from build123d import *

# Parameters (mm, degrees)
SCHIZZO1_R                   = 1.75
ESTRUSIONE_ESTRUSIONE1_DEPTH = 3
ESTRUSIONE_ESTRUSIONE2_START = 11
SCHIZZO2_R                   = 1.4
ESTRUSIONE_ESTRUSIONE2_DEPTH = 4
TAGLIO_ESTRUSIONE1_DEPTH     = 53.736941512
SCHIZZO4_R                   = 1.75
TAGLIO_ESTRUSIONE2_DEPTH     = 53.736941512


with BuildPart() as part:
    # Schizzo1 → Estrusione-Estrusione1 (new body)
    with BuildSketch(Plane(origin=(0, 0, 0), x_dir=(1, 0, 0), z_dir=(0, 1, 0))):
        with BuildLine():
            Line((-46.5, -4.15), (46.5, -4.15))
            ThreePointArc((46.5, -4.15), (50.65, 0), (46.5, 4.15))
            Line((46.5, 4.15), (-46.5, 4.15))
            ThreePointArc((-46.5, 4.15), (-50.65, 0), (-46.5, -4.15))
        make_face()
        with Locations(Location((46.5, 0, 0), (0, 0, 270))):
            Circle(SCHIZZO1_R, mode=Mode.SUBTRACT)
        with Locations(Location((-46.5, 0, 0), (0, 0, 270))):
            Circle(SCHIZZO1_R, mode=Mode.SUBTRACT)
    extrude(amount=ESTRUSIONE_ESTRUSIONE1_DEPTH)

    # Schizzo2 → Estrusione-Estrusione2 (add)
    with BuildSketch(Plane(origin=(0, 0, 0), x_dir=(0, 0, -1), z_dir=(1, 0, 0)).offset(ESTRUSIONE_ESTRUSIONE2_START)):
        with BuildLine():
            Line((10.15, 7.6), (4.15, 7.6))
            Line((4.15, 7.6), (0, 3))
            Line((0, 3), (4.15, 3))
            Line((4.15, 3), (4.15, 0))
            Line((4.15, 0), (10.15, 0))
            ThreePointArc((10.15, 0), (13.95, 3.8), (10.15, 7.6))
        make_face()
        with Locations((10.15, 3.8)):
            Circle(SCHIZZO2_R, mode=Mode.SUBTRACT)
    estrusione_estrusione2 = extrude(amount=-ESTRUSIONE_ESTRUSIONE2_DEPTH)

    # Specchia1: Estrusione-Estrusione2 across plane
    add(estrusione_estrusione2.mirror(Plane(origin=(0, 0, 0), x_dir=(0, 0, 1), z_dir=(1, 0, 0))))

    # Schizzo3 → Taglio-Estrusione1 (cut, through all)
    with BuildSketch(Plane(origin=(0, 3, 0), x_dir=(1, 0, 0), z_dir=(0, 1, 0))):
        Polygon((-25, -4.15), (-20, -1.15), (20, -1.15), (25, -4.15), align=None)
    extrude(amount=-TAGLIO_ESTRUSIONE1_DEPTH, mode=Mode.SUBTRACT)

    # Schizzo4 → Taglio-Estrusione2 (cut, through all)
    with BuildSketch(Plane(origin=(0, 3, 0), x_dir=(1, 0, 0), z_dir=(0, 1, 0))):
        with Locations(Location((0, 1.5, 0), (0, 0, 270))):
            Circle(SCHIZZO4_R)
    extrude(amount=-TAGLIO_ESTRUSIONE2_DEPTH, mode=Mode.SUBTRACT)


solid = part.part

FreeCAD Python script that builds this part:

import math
import FreeCAD as App
import Part
import Sketcher
from FreeCAD import Vector


def add_polygon(sketch, points):
    """Adds a closed chain of lines whose ends are joined by coincident constraints."""
    first, n = sketch.GeometryCount, len(points)
    for a, b in zip(points, points[1:] + points[:1]):
        sketch.addGeometry(Part.LineSegment(App.Vector(*a, 0), App.Vector(*b, 0)), False)
    for i in range(n):
        sketch.addConstraint(Sketcher.Constraint("Coincident", first + i, 2, first + (i + 1) % n, 1))

doc = App.newDocument("Part")
body = doc.addObject("PartDesign::Body", "Body")

sketch1 = doc.addObject("Sketcher::SketchObject", "Sketch")
body.addObject(sketch1)
sketch1.AttachmentSupport = (doc.XZ_Plane, [""])
sketch1.MapMode = "FlatFace"
sketch1.addGeometry([
    Part.LineSegment(Vector(-46.5, 4.15, 0), Vector(46.5, 4.15, 0)),
    Part.ArcOfCircle(Part.Circle(Vector(46.5, 0, 0), Vector(0, 0, 1), 4.15), math.radians(-90), math.radians(90)),
    Part.LineSegment(Vector(46.5, -4.15, 0), Vector(-46.5, -4.15, 0)),
    Part.ArcOfCircle(Part.Circle(Vector(-46.5, 0, 0), Vector(0, 0, 1), 4.15), math.radians(90), math.radians(270)),
    Part.Circle(Vector(-46.5, 0, 0), Vector(0, 0, 1), 1.75),
    Part.Circle(Vector(46.5, 0, 0), Vector(0, 0, 1), 1.75),
], False)
sketch1.addConstraint([
    Sketcher.Constraint("Tangent", 0, 2, 1, 2),
    Sketcher.Constraint("Tangent", 1, 1, 2, 1),
    Sketcher.Constraint("Tangent", 2, 2, 3, 2),
    Sketcher.Constraint("Tangent", 3, 1, 0, 1),
    Sketcher.Constraint("Horizontal", 0),
    Sketcher.Constraint("Horizontal", 2),
    Sketcher.Constraint("Coincident", 4, 3, 3, 3),
    Sketcher.Constraint("Coincident", 5, 3, 1, 3),
    Sketcher.Constraint("Equal", 4, 5),
    Sketcher.Constraint("Symmetric", 1, 3, 3, 3, -1, 1),
    Sketcher.Constraint("Diameter", 4, 3.5),
    Sketcher.Constraint("DistanceX", 0, 1, 0, 2, 93.0),
    Sketcher.Constraint("Radius", 1, 4.15),
])
pad1 = doc.addObject("PartDesign::Pad", "Pad")
body.addObject(pad1)
pad1.Profile = sketch1
pad1.Length = 3
pad1.Reversed = True

sketch2 = doc.addObject("Sketcher::SketchObject", "Sketch001")
body.addObject(sketch2)
sketch2.AttachmentSupport = (doc.YZ_Plane, [""])
sketch2.MapMode = "FlatFace"
sketch2.AttachmentOffset = App.Placement(Vector(0, 0, 11), App.Rotation())
sketch2.addGeometry([
    Part.LineSegment(Vector(7.6, -10.15, 0), Vector(7.6, -4.15, 0)),
    Part.LineSegment(Vector(7.6, -4.15, 0), Vector(3, 0, 0)),
    Part.LineSegment(Vector(3, 0, 0), Vector(3, -4.15, 0)),
    Part.LineSegment(Vector(3, -4.15, 0), Vector(0, -4.15, 0)),
    Part.LineSegment(Vector(0, -4.15, 0), Vector(0, -10.15, 0)),
    Part.ArcOfCircle(Part.Circle(Vector(3.8, -10.15, 0), Vector(0, 0, 1), 3.8), math.radians(180), math.radians(360)),
    Part.Circle(Vector(3.8, -10.15, 0), Vector(0, 0, 1), 1.4),
], False)
sketch2.addConstraint([
    Sketcher.Constraint("Coincident", 0, 2, 1, 1),
    Sketcher.Constraint("Coincident", 1, 2, 2, 1),
    Sketcher.Constraint("Coincident", 2, 2, 3, 1),
    Sketcher.Constraint("Coincident", 3, 2, 4, 1),
    Sketcher.Constraint("Tangent", 4, 2, 5, 1),
    Sketcher.Constraint("Tangent", 5, 2, 0, 1),
    Sketcher.Constraint("Vertical", 0),
    Sketcher.Constraint("Vertical", 2),
    Sketcher.Constraint("Horizontal", 3),
    Sketcher.Constraint("Vertical", 4),
    Sketcher.Constraint("Coincident", 6, 3, 5, 3),
    Sketcher.Constraint("PointOnObject", 1, 2, -1),
    Sketcher.Constraint("PointOnObject", 3, 2, -2),
    Sketcher.Constraint("Horizontal", 0, 2, 2, 2),
    Sketcher.Constraint("Diameter", 6, 2.8),
    Sketcher.Constraint("Radius", 5, 3.8),
    Sketcher.Constraint("DistanceX", 3, 2, 3, 1, 3.0),
    Sketcher.Constraint("DistanceY", 0, 1, 0, 2, 6.0),
    Sketcher.Constraint("DistanceY", 2, 2, 2, 1, 4.15),
])
pad2 = doc.addObject("PartDesign::Pad", "Pad001")
body.addObject(pad2)
pad2.Profile = sketch2
pad2.Length = 4
pad2.Reversed = True
doc.recompute()

mirrored = doc.addObject("PartDesign::Mirrored", "Mirrored")
body.addObject(mirrored)
mirrored.Originals = [pad2]
mirrored.MirrorPlane = (doc.YZ_Plane, [""])
body.Tip = mirrored

sketch3 = doc.addObject("Sketcher::SketchObject", "Sketch002")
body.addObject(sketch3)
sketch3.AttachmentSupport = (doc.XZ_Plane, [""])
sketch3.MapMode = "FlatFace"
sketch3.AttachmentOffset = App.Placement(Vector(0, 0, -3), App.Rotation())
add_polygon(sketch3, [(-20, 1.15), (-25, 4.15), (25, 4.15), (20, 1.15)])
sketch3.addConstraint([
    Sketcher.Constraint("Horizontal", 1),
    Sketcher.Constraint("Horizontal", 3),
    Sketcher.Constraint("Equal", 0, 2),
    Sketcher.Constraint("DistanceX", 1, 1, 1, 2, 50.0),
    Sketcher.Constraint("DistanceX", 3, 2, 3, 1, 40.0),
    Sketcher.Constraint("DistanceX", 0, 2, -1, 1, 25.0),
    Sketcher.Constraint("DistanceY", 2, 2, 1, 2, 3.0),
    Sketcher.Constraint("DistanceY", -1, 1, 0, 2, 4.15),
])
pocket1 = doc.addObject("PartDesign::Pocket", "Pocket")
body.addObject(pocket1)
pocket1.Profile = sketch3
pocket1.Type = "ThroughAll"
pocket1.Reversed = True

sketch4 = doc.addObject("Sketcher::SketchObject", "Sketch003")
body.addObject(sketch4)
sketch4.AttachmentSupport = (doc.XZ_Plane, [""])
sketch4.MapMode = "FlatFace"
sketch4.AttachmentOffset = App.Placement(Vector(0, 0, -3), App.Rotation())
sketch4.addGeometry(Part.Circle(Vector(0, -1.5, 0), Vector(0, 0, 1), 1.75), False)
sketch4.addConstraint([
    Sketcher.Constraint("PointOnObject", 0, 3, -2),
    Sketcher.Constraint("Diameter", 0, 3.5),
    Sketcher.Constraint("DistanceY", 0, 3, -1, 1, 1.5),
])
pocket2 = doc.addObject("PartDesign::Pocket", "Pocket001")
body.addObject(pocket2)
pocket2.Profile = sketch4
pocket2.Type = "ThroughAll"
pocket2.Reversed = True

doc.recompute()
